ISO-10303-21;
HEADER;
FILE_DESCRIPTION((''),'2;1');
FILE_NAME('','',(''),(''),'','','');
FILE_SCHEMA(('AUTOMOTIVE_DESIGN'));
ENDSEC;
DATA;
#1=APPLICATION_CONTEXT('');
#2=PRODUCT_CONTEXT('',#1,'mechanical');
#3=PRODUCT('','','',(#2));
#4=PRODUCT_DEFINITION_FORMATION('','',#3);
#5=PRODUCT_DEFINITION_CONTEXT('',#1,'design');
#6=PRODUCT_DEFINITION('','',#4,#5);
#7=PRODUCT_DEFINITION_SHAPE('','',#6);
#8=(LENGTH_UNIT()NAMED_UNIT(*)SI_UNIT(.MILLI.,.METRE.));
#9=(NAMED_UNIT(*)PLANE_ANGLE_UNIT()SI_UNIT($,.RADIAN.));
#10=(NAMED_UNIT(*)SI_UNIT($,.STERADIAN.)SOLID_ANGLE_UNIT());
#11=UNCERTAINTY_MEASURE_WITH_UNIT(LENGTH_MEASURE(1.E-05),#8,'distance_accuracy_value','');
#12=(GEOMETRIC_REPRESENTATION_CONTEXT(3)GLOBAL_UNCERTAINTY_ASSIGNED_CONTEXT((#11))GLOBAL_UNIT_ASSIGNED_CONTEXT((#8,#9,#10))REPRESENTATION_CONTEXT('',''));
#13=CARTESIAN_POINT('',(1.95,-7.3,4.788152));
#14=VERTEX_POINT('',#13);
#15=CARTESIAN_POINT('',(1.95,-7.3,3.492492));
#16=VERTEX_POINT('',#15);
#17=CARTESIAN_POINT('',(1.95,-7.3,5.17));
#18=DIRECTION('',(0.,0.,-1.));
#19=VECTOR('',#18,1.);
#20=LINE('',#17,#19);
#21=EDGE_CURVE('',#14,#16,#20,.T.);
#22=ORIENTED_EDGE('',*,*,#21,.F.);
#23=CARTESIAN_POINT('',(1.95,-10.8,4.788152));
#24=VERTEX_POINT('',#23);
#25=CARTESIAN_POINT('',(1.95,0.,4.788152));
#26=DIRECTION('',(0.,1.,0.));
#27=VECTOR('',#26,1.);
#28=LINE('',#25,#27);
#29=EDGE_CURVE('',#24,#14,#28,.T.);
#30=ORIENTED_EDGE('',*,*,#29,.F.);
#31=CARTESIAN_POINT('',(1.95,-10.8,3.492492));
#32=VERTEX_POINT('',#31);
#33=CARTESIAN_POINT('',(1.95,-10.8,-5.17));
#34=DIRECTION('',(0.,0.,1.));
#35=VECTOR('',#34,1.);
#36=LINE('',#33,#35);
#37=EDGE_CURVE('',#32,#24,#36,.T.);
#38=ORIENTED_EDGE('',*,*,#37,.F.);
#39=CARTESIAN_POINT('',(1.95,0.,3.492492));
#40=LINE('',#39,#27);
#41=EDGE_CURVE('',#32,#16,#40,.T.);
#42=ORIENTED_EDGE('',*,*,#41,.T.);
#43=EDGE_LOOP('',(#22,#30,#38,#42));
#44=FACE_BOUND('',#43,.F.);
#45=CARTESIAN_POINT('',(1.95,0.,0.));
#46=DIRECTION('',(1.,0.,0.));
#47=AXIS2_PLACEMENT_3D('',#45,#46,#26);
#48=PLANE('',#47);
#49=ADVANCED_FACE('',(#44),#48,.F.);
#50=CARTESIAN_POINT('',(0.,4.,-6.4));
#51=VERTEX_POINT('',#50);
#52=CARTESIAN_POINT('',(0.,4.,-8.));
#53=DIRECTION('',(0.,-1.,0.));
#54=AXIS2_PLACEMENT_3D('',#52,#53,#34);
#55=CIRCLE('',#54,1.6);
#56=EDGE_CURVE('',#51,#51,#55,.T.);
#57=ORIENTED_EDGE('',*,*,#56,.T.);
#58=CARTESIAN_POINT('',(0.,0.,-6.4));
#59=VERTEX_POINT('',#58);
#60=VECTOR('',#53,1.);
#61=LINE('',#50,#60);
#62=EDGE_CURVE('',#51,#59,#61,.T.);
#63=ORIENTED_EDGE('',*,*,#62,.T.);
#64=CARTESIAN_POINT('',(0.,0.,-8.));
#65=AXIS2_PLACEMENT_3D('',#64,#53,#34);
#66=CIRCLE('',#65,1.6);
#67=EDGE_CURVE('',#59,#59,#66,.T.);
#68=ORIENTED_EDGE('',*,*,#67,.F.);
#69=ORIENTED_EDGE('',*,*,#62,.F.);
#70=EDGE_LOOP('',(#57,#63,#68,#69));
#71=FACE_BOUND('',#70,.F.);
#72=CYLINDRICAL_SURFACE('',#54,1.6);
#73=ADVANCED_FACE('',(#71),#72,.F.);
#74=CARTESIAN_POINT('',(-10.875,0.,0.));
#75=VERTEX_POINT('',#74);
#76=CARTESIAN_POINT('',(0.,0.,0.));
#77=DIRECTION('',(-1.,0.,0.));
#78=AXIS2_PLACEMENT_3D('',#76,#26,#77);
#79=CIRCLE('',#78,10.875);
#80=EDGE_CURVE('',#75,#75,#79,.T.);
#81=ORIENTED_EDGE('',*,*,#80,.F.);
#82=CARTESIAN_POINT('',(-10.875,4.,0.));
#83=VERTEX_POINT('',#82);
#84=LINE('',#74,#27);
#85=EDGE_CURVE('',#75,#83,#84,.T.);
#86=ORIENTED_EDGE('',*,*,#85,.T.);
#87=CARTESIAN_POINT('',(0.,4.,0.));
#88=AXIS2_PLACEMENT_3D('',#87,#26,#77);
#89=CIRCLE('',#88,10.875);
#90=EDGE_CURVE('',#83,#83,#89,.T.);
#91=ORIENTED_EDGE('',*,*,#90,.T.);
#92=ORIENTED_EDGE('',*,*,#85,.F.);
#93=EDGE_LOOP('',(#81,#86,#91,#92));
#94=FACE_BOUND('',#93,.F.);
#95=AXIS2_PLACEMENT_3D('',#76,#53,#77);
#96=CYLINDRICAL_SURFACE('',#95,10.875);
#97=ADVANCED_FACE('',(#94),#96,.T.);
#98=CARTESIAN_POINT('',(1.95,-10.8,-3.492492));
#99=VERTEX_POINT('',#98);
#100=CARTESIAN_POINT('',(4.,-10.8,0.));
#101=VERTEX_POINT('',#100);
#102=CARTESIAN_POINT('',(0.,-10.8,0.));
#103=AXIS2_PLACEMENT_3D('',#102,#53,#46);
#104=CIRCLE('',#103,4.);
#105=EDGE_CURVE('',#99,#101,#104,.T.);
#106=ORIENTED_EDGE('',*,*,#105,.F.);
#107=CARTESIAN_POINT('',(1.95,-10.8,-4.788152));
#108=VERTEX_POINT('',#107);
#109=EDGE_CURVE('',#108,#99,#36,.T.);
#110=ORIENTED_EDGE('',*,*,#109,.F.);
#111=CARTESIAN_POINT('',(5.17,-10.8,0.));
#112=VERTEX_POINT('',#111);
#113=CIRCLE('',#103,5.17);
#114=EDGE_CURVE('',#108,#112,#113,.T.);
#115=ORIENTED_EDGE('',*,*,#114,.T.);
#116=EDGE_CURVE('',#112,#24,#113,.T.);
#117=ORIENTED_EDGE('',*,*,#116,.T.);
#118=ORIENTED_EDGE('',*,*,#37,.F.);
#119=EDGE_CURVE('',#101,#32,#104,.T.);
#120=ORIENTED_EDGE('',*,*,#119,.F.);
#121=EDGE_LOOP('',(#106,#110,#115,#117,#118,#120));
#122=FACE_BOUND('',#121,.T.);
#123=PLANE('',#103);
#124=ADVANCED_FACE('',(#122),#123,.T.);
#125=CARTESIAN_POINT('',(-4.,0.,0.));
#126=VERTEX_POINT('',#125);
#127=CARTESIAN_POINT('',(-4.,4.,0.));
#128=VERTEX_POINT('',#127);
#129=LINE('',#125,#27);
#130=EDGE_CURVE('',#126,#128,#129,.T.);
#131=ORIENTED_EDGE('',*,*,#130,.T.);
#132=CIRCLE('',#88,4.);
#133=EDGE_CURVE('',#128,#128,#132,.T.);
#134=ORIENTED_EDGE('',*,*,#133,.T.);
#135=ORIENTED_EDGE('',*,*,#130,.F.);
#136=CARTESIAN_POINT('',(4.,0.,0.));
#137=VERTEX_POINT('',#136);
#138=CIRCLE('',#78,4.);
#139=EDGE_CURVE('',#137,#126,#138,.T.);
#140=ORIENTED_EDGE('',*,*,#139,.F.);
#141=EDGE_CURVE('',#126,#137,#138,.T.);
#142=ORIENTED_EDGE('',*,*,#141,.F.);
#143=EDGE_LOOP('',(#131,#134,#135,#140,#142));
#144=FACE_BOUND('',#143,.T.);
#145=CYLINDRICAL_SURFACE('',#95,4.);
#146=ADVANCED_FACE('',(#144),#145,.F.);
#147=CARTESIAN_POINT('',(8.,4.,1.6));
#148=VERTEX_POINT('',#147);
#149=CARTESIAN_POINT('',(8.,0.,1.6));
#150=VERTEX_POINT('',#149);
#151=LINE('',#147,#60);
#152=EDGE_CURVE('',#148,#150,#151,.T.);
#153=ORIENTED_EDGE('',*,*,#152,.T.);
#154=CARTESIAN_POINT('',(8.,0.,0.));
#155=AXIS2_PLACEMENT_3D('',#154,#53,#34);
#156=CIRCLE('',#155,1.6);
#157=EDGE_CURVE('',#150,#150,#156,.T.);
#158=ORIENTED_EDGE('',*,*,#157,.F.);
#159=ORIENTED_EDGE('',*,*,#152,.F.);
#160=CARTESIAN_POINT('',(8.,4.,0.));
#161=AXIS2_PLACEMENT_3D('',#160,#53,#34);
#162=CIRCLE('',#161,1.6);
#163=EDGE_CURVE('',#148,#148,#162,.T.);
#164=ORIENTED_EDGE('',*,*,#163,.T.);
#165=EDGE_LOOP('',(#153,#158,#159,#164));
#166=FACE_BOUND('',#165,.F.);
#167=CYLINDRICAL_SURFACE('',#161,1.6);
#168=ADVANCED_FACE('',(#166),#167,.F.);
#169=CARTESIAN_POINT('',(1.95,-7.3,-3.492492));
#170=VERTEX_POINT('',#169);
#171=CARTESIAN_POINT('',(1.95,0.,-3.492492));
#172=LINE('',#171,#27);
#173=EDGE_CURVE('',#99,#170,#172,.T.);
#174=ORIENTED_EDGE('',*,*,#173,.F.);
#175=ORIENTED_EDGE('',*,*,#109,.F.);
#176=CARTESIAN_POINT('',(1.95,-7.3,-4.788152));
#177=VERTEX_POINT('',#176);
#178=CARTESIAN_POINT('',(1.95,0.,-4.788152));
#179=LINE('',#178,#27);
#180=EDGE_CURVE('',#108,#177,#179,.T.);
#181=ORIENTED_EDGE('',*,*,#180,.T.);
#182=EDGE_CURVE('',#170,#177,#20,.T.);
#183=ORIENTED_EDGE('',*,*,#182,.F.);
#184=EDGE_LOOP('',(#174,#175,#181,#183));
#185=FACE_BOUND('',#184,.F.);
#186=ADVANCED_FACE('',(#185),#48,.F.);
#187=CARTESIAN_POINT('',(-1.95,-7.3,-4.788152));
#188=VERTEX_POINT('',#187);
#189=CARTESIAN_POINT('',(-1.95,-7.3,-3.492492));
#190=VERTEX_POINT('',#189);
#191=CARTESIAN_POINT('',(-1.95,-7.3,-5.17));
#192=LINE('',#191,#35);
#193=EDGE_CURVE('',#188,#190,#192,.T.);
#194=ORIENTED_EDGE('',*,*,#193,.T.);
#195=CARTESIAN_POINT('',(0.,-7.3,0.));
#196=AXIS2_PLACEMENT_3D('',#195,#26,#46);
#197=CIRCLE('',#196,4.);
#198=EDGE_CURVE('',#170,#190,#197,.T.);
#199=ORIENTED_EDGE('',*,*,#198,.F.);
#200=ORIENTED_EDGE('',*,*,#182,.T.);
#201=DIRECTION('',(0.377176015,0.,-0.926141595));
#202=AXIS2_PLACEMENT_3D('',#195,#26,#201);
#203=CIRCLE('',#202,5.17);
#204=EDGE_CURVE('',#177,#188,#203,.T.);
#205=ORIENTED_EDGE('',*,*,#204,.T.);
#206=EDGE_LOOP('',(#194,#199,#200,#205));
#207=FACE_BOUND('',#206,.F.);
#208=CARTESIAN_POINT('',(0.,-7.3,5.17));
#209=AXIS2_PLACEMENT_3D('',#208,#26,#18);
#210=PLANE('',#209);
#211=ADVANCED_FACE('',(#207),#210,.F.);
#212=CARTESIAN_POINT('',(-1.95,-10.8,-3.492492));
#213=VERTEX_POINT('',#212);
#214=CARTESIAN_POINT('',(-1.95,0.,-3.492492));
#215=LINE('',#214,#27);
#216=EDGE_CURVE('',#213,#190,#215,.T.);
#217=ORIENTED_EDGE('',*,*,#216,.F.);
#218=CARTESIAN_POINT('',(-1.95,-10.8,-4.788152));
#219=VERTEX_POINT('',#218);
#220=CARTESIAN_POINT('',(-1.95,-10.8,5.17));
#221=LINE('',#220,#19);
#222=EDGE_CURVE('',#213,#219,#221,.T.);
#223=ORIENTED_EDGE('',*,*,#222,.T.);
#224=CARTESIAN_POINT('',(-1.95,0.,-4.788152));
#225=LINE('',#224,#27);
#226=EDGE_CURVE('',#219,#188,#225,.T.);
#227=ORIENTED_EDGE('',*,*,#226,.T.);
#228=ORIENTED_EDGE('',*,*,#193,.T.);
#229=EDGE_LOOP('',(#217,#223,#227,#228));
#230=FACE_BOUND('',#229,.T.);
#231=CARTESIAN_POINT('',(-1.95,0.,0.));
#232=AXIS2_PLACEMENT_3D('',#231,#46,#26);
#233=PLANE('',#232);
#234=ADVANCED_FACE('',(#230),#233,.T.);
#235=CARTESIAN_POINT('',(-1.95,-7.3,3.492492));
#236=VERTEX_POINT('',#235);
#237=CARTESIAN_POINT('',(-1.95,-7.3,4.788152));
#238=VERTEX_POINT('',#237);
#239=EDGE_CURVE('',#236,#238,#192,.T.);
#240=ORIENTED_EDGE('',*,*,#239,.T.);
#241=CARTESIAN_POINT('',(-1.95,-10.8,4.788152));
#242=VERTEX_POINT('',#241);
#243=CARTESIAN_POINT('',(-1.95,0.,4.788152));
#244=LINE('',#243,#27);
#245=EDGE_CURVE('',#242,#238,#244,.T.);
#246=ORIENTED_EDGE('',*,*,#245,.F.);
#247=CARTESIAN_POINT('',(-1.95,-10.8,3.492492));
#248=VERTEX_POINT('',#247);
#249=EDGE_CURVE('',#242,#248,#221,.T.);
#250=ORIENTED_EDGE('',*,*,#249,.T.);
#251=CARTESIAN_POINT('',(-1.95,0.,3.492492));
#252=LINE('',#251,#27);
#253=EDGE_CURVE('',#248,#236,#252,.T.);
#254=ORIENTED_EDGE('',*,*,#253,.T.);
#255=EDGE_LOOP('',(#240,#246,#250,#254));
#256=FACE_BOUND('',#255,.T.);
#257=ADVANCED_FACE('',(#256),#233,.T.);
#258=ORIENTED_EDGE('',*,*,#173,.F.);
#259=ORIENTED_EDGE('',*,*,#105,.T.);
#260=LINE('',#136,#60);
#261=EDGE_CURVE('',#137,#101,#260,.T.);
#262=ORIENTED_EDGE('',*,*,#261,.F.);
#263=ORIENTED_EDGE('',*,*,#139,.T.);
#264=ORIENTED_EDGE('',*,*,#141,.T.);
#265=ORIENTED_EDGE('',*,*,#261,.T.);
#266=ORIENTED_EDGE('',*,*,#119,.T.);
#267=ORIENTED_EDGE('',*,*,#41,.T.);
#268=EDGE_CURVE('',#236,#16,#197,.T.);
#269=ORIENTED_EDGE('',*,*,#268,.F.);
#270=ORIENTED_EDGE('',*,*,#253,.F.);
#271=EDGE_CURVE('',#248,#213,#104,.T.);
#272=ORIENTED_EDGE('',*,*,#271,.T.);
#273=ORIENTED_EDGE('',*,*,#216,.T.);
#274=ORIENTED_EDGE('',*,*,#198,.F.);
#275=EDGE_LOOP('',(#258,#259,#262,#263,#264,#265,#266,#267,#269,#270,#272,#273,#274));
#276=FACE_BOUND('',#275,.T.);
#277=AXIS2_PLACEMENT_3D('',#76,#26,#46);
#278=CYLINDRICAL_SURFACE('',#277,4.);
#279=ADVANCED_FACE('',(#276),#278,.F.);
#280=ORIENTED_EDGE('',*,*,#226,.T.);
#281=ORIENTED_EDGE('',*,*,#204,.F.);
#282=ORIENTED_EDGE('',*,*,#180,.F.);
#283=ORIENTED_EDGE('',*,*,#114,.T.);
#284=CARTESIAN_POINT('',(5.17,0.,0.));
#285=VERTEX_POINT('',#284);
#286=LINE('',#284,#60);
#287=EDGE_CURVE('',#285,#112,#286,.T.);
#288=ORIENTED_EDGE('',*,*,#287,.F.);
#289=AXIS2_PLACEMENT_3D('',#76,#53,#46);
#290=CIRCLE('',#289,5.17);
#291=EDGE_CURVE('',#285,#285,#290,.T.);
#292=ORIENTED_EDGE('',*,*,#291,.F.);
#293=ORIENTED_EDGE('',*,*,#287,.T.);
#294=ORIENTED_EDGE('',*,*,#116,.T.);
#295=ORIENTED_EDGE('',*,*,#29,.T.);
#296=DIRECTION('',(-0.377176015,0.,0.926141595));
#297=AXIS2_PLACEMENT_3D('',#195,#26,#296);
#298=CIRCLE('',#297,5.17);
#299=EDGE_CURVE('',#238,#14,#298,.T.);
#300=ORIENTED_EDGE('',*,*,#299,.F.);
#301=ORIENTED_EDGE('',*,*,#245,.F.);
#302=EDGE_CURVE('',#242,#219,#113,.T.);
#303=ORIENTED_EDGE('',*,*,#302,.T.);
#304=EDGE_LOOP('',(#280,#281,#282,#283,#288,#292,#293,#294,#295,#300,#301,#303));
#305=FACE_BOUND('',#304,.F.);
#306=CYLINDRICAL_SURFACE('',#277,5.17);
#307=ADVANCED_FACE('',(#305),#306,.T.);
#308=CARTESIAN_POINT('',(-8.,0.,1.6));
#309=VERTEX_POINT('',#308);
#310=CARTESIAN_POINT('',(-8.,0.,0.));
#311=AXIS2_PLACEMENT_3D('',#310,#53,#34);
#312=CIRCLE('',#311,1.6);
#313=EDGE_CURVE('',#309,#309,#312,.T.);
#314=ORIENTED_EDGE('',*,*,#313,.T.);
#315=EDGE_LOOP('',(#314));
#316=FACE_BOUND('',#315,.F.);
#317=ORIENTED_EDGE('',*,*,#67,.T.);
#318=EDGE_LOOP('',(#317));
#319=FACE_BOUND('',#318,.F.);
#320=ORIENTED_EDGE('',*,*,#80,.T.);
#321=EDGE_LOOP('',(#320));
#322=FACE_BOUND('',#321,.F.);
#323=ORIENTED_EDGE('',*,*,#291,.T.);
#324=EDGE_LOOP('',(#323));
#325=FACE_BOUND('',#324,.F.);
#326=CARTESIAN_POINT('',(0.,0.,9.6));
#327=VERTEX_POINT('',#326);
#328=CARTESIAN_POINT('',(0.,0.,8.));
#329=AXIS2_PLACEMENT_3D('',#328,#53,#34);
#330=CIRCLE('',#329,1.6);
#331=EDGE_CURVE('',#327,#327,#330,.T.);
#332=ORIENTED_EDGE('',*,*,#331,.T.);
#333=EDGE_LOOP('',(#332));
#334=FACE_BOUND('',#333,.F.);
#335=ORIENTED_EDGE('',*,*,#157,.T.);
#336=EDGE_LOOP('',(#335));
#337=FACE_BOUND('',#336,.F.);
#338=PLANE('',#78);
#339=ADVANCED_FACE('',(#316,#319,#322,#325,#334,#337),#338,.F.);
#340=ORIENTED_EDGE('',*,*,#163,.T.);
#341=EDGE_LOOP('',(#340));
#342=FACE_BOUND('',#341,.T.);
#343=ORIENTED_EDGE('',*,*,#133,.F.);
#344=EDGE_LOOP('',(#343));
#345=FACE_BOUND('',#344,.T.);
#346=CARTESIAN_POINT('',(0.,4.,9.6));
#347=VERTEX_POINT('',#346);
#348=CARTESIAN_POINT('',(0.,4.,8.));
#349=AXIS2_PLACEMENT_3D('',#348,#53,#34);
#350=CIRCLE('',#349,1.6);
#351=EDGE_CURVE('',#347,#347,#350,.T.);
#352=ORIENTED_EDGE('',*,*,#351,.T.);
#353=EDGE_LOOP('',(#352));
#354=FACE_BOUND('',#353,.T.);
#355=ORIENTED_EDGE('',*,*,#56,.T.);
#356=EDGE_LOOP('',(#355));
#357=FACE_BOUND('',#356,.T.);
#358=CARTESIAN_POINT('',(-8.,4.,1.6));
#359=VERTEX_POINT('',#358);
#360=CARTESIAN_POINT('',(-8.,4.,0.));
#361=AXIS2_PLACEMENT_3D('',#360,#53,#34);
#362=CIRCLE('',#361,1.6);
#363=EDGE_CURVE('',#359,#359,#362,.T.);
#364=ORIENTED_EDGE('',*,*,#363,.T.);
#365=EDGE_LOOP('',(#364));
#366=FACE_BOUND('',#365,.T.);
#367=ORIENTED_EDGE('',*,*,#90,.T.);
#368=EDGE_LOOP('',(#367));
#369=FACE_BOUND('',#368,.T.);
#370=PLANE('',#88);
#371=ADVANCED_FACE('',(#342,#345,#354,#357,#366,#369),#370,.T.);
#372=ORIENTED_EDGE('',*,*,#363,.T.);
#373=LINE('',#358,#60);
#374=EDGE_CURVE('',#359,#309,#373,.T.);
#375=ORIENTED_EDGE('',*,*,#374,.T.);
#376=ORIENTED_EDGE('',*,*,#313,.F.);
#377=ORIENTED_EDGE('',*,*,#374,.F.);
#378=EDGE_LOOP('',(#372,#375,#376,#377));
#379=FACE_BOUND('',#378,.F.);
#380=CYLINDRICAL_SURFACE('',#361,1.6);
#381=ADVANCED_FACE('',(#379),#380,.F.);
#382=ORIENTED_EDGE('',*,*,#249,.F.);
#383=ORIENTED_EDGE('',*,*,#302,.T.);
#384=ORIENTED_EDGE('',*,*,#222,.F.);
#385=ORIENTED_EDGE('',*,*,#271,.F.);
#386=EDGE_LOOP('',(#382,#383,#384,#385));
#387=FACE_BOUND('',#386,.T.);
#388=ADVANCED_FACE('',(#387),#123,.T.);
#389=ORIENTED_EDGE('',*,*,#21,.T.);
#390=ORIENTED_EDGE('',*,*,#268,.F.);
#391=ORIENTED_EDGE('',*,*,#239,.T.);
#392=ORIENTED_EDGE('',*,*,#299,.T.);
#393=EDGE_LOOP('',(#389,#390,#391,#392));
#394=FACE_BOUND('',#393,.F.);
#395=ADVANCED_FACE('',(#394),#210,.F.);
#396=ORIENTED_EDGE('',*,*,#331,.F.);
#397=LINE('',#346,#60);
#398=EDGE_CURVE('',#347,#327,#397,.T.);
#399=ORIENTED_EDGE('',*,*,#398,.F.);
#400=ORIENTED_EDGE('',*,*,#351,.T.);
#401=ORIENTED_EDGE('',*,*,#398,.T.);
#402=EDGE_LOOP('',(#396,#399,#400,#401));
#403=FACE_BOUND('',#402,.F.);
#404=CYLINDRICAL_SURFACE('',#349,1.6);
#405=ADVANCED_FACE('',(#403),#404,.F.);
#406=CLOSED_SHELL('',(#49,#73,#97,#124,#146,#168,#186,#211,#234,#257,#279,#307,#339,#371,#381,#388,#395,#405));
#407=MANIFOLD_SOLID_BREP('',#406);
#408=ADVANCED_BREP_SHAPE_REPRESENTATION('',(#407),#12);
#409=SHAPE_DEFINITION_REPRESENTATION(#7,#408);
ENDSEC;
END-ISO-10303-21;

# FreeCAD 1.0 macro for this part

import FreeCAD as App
import Part
import Sketcher
from FreeCAD import Vector


def add_polygon(sketch, points):
    """Adds a closed chain of lines whose ends are joined by coincident constraints."""
    first, n = sketch.GeometryCount, len(points)
    for a, b in zip(points, points[1:] + points[:1]):
        sketch.addGeometry(Part.LineSegment(App.Vector(*a, 0), App.Vector(*b, 0)), False)
    for i in range(n):
        sketch.addConstraint(Sketcher.Constraint("Coincident", first + i, 2, first + (i + 1) % n, 1))

doc = App.newDocument("Part")
params = doc.addObject("Spreadsheet::Sheet", "Params")
for row, (alias, value) in enumerate([
    ("sketch1_diameter", "8 mm"),
    ("sketch1_diameter2", "21.75 mm"),
    ("pad1_length", "4 mm"),
    ("sketch2_diameter", "3.2 mm"),
    ("hole_diameter", "3.2 mm"),
    ("sketch3_diameter", "10.34 mm"),
    ("sketch3_diameter2", "8 mm"),
    ("pad2_length", "10.8 mm"),
    ("sketch4_height", "10.34 mm"),
    ("sketch4_width", "3.5 mm"),
    ("pocket1_length", "3.9 mm"),
], start=1):
    params.set(f"A{row}", alias)
    params.set(f"B{row}", "=" + value)
    params.setAlias(f"B{row}", alias)

body = doc.addObject("PartDesign::Body", "Body")

sketch1 = body.newObject("Sketcher::SketchObject", "Sketch")
sketch1.AttachmentSupport = (doc.getObject("XZ_Plane"), [""])
sketch1.MapMode = "FlatFace"
sketch1.addGeometry([
    Part.Circle(Vector(0, 0, 0), Vector(0, 0, 1), 10.9),
    Part.Circle(Vector(0, 0, 0), Vector(0, 0, 1), 4),
], False)
sketch1.addConstraint([
    Sketcher.Constraint("Coincident", 0, 3, -1, 1),
    Sketcher.Constraint("Coincident", 1, 3, -1, 1),
    Sketcher.Constraint("Diameter", 1, 8.0),
    Sketcher.Constraint("Diameter", 0, 21.75),
])
sketch1.setExpression("Constraints[2]", "Params.sketch1_diameter")
sketch1.setExpression("Constraints[3]", "Params.sketch1_diameter2")
pad1 = body.newObject("PartDesign::Pad", "Pad")
pad1.Profile = sketch1
pad1.setExpression("Length", "Params.pad1_length")
pad1.Reversed = True

sketch2 = body.newObject("Sketcher::SketchObject", "Sketch001")
sketch2.AttachmentSupport = (doc.getObject("XZ_Plane"), [""])
sketch2.MapMode = "FlatFace"
sketch2.AttachmentOffset = App.Placement(Vector(0, 0, -4), App.Rotation())
sketch2.addGeometry([
    Part.Circle(Vector(-8, 0, 0), Vector(0, 0, 1), 1.6),
    Part.Circle(Vector(0, 8, 0), Vector(0, 0, 1), 1.6),
    Part.Circle(Vector(8, 0, 0), Vector(0, 0, 1), 1.6),
    Part.Circle(Vector(0, -8, 0), Vector(0, 0, 1), 1.6),
], False)
sketch2.addConstraint([
    Sketcher.Constraint("Equal", 0, 1),
    Sketcher.Constraint("Equal", 1, 2),
    Sketcher.Constraint("Equal", 2, 3),
    Sketcher.Constraint("Symmetric", 0, 3, 2, 3, -1, 1),
    Sketcher.Constraint("Symmetric", 1, 3, 3, 3, -1, 1),
    Sketcher.Constraint("PointOnObject", 0, 3, -1),
    Sketcher.Constraint("PointOnObject", 1, 3, -2),
    Sketcher.Constraint("Diameter", 0, 3.2),
    Sketcher.Constraint("DistanceX", 0, 3, -1, 1, 8.0),
    Sketcher.Constraint("DistanceY", -1, 1, 1, 3, 8.0),
])
sketch2.setExpression("Constraints[7]", "Params.sketch2_diameter")
doc.recompute()
hole = body.newObject("PartDesign::Hole", "Hole")
hole.Profile = sketch2
hole.ThreadType = "None"
hole.setExpression("Diameter", "Params.hole_diameter")
hole.DepthType = "ThroughAll"
hole.Reversed = True

sketch3 = body.newObject("Sketcher::SketchObject", "Sketch002")
sketch3.AttachmentSupport = (doc.getObject("XZ_Plane"), [""])
sketch3.MapMode = "FlatFace"
sketch3.addGeometry([
    Part.Circle(Vector(0, 0, 0), Vector(0, 0, 1), 5.2),
    Part.Circle(Vector(0, 0, 0), Vector(0, 0, 1), 4),
], False)
sketch3.addConstraint([
    Sketcher.Constraint("Coincident", 0, 3, -1, 1),
    Sketcher.Constraint("Coincident", 1, 3, -1, 1),
    Sketcher.Constraint("Diameter", 0, 10.34),
    Sketcher.Constraint("Diameter", 1, 8.0),
])
sketch3.setExpression("Constraints[2]", "Params.sketch3_diameter")
sketch3.setExpression("Constraints[3]", "Params.sketch3_diameter2")
pad2 = body.newObject("PartDesign::Pad", "Pad001")
pad2.Profile = sketch3
pad2.setExpression("Length", "Params.pad2_length")

sketch4 = body.newObject("Sketcher::SketchObject", "Sketch003")
sketch4.AttachmentSupport = (doc.getObject("YZ_Plane"), [""])
sketch4.MapMode = "FlatFace"
add_polygon(sketch4, [(-7.3, 5.2), (-10.8, 5.2), (-10.8, -5.2), (-7.3, -5.2)])
sketch4.addConstraint([
    Sketcher.Constraint("Horizontal", 0),
    Sketcher.Constraint("Vertical", 1),
    Sketcher.Constraint("Horizontal", 2),
    Sketcher.Constraint("Vertical", 3),
    Sketcher.Constraint("DistanceY", 1, 2, 1, 1, 10.34),
    Sketcher.Constraint("DistanceX", 2, 2, -1, 1, 7.3),
    Sketcher.Constraint("DistanceX", 0, 2, 0, 1, 3.5),
    Sketcher.Constraint("DistanceY", -1, 1, 0, 2, 5.17),
])
sketch4.setExpression("Constraints[8]", "Params.sketch4_height")
sketch4.setExpression("Constraints[10]", "Params.sketch4_width")
pocket1 = body.newObject("PartDesign::Pocket", "Pocket")
pocket1.Profile = sketch4
pocket1.setExpression("Length", "Params.pocket1_length")
pocket1.Midplane = True

doc.recompute()
